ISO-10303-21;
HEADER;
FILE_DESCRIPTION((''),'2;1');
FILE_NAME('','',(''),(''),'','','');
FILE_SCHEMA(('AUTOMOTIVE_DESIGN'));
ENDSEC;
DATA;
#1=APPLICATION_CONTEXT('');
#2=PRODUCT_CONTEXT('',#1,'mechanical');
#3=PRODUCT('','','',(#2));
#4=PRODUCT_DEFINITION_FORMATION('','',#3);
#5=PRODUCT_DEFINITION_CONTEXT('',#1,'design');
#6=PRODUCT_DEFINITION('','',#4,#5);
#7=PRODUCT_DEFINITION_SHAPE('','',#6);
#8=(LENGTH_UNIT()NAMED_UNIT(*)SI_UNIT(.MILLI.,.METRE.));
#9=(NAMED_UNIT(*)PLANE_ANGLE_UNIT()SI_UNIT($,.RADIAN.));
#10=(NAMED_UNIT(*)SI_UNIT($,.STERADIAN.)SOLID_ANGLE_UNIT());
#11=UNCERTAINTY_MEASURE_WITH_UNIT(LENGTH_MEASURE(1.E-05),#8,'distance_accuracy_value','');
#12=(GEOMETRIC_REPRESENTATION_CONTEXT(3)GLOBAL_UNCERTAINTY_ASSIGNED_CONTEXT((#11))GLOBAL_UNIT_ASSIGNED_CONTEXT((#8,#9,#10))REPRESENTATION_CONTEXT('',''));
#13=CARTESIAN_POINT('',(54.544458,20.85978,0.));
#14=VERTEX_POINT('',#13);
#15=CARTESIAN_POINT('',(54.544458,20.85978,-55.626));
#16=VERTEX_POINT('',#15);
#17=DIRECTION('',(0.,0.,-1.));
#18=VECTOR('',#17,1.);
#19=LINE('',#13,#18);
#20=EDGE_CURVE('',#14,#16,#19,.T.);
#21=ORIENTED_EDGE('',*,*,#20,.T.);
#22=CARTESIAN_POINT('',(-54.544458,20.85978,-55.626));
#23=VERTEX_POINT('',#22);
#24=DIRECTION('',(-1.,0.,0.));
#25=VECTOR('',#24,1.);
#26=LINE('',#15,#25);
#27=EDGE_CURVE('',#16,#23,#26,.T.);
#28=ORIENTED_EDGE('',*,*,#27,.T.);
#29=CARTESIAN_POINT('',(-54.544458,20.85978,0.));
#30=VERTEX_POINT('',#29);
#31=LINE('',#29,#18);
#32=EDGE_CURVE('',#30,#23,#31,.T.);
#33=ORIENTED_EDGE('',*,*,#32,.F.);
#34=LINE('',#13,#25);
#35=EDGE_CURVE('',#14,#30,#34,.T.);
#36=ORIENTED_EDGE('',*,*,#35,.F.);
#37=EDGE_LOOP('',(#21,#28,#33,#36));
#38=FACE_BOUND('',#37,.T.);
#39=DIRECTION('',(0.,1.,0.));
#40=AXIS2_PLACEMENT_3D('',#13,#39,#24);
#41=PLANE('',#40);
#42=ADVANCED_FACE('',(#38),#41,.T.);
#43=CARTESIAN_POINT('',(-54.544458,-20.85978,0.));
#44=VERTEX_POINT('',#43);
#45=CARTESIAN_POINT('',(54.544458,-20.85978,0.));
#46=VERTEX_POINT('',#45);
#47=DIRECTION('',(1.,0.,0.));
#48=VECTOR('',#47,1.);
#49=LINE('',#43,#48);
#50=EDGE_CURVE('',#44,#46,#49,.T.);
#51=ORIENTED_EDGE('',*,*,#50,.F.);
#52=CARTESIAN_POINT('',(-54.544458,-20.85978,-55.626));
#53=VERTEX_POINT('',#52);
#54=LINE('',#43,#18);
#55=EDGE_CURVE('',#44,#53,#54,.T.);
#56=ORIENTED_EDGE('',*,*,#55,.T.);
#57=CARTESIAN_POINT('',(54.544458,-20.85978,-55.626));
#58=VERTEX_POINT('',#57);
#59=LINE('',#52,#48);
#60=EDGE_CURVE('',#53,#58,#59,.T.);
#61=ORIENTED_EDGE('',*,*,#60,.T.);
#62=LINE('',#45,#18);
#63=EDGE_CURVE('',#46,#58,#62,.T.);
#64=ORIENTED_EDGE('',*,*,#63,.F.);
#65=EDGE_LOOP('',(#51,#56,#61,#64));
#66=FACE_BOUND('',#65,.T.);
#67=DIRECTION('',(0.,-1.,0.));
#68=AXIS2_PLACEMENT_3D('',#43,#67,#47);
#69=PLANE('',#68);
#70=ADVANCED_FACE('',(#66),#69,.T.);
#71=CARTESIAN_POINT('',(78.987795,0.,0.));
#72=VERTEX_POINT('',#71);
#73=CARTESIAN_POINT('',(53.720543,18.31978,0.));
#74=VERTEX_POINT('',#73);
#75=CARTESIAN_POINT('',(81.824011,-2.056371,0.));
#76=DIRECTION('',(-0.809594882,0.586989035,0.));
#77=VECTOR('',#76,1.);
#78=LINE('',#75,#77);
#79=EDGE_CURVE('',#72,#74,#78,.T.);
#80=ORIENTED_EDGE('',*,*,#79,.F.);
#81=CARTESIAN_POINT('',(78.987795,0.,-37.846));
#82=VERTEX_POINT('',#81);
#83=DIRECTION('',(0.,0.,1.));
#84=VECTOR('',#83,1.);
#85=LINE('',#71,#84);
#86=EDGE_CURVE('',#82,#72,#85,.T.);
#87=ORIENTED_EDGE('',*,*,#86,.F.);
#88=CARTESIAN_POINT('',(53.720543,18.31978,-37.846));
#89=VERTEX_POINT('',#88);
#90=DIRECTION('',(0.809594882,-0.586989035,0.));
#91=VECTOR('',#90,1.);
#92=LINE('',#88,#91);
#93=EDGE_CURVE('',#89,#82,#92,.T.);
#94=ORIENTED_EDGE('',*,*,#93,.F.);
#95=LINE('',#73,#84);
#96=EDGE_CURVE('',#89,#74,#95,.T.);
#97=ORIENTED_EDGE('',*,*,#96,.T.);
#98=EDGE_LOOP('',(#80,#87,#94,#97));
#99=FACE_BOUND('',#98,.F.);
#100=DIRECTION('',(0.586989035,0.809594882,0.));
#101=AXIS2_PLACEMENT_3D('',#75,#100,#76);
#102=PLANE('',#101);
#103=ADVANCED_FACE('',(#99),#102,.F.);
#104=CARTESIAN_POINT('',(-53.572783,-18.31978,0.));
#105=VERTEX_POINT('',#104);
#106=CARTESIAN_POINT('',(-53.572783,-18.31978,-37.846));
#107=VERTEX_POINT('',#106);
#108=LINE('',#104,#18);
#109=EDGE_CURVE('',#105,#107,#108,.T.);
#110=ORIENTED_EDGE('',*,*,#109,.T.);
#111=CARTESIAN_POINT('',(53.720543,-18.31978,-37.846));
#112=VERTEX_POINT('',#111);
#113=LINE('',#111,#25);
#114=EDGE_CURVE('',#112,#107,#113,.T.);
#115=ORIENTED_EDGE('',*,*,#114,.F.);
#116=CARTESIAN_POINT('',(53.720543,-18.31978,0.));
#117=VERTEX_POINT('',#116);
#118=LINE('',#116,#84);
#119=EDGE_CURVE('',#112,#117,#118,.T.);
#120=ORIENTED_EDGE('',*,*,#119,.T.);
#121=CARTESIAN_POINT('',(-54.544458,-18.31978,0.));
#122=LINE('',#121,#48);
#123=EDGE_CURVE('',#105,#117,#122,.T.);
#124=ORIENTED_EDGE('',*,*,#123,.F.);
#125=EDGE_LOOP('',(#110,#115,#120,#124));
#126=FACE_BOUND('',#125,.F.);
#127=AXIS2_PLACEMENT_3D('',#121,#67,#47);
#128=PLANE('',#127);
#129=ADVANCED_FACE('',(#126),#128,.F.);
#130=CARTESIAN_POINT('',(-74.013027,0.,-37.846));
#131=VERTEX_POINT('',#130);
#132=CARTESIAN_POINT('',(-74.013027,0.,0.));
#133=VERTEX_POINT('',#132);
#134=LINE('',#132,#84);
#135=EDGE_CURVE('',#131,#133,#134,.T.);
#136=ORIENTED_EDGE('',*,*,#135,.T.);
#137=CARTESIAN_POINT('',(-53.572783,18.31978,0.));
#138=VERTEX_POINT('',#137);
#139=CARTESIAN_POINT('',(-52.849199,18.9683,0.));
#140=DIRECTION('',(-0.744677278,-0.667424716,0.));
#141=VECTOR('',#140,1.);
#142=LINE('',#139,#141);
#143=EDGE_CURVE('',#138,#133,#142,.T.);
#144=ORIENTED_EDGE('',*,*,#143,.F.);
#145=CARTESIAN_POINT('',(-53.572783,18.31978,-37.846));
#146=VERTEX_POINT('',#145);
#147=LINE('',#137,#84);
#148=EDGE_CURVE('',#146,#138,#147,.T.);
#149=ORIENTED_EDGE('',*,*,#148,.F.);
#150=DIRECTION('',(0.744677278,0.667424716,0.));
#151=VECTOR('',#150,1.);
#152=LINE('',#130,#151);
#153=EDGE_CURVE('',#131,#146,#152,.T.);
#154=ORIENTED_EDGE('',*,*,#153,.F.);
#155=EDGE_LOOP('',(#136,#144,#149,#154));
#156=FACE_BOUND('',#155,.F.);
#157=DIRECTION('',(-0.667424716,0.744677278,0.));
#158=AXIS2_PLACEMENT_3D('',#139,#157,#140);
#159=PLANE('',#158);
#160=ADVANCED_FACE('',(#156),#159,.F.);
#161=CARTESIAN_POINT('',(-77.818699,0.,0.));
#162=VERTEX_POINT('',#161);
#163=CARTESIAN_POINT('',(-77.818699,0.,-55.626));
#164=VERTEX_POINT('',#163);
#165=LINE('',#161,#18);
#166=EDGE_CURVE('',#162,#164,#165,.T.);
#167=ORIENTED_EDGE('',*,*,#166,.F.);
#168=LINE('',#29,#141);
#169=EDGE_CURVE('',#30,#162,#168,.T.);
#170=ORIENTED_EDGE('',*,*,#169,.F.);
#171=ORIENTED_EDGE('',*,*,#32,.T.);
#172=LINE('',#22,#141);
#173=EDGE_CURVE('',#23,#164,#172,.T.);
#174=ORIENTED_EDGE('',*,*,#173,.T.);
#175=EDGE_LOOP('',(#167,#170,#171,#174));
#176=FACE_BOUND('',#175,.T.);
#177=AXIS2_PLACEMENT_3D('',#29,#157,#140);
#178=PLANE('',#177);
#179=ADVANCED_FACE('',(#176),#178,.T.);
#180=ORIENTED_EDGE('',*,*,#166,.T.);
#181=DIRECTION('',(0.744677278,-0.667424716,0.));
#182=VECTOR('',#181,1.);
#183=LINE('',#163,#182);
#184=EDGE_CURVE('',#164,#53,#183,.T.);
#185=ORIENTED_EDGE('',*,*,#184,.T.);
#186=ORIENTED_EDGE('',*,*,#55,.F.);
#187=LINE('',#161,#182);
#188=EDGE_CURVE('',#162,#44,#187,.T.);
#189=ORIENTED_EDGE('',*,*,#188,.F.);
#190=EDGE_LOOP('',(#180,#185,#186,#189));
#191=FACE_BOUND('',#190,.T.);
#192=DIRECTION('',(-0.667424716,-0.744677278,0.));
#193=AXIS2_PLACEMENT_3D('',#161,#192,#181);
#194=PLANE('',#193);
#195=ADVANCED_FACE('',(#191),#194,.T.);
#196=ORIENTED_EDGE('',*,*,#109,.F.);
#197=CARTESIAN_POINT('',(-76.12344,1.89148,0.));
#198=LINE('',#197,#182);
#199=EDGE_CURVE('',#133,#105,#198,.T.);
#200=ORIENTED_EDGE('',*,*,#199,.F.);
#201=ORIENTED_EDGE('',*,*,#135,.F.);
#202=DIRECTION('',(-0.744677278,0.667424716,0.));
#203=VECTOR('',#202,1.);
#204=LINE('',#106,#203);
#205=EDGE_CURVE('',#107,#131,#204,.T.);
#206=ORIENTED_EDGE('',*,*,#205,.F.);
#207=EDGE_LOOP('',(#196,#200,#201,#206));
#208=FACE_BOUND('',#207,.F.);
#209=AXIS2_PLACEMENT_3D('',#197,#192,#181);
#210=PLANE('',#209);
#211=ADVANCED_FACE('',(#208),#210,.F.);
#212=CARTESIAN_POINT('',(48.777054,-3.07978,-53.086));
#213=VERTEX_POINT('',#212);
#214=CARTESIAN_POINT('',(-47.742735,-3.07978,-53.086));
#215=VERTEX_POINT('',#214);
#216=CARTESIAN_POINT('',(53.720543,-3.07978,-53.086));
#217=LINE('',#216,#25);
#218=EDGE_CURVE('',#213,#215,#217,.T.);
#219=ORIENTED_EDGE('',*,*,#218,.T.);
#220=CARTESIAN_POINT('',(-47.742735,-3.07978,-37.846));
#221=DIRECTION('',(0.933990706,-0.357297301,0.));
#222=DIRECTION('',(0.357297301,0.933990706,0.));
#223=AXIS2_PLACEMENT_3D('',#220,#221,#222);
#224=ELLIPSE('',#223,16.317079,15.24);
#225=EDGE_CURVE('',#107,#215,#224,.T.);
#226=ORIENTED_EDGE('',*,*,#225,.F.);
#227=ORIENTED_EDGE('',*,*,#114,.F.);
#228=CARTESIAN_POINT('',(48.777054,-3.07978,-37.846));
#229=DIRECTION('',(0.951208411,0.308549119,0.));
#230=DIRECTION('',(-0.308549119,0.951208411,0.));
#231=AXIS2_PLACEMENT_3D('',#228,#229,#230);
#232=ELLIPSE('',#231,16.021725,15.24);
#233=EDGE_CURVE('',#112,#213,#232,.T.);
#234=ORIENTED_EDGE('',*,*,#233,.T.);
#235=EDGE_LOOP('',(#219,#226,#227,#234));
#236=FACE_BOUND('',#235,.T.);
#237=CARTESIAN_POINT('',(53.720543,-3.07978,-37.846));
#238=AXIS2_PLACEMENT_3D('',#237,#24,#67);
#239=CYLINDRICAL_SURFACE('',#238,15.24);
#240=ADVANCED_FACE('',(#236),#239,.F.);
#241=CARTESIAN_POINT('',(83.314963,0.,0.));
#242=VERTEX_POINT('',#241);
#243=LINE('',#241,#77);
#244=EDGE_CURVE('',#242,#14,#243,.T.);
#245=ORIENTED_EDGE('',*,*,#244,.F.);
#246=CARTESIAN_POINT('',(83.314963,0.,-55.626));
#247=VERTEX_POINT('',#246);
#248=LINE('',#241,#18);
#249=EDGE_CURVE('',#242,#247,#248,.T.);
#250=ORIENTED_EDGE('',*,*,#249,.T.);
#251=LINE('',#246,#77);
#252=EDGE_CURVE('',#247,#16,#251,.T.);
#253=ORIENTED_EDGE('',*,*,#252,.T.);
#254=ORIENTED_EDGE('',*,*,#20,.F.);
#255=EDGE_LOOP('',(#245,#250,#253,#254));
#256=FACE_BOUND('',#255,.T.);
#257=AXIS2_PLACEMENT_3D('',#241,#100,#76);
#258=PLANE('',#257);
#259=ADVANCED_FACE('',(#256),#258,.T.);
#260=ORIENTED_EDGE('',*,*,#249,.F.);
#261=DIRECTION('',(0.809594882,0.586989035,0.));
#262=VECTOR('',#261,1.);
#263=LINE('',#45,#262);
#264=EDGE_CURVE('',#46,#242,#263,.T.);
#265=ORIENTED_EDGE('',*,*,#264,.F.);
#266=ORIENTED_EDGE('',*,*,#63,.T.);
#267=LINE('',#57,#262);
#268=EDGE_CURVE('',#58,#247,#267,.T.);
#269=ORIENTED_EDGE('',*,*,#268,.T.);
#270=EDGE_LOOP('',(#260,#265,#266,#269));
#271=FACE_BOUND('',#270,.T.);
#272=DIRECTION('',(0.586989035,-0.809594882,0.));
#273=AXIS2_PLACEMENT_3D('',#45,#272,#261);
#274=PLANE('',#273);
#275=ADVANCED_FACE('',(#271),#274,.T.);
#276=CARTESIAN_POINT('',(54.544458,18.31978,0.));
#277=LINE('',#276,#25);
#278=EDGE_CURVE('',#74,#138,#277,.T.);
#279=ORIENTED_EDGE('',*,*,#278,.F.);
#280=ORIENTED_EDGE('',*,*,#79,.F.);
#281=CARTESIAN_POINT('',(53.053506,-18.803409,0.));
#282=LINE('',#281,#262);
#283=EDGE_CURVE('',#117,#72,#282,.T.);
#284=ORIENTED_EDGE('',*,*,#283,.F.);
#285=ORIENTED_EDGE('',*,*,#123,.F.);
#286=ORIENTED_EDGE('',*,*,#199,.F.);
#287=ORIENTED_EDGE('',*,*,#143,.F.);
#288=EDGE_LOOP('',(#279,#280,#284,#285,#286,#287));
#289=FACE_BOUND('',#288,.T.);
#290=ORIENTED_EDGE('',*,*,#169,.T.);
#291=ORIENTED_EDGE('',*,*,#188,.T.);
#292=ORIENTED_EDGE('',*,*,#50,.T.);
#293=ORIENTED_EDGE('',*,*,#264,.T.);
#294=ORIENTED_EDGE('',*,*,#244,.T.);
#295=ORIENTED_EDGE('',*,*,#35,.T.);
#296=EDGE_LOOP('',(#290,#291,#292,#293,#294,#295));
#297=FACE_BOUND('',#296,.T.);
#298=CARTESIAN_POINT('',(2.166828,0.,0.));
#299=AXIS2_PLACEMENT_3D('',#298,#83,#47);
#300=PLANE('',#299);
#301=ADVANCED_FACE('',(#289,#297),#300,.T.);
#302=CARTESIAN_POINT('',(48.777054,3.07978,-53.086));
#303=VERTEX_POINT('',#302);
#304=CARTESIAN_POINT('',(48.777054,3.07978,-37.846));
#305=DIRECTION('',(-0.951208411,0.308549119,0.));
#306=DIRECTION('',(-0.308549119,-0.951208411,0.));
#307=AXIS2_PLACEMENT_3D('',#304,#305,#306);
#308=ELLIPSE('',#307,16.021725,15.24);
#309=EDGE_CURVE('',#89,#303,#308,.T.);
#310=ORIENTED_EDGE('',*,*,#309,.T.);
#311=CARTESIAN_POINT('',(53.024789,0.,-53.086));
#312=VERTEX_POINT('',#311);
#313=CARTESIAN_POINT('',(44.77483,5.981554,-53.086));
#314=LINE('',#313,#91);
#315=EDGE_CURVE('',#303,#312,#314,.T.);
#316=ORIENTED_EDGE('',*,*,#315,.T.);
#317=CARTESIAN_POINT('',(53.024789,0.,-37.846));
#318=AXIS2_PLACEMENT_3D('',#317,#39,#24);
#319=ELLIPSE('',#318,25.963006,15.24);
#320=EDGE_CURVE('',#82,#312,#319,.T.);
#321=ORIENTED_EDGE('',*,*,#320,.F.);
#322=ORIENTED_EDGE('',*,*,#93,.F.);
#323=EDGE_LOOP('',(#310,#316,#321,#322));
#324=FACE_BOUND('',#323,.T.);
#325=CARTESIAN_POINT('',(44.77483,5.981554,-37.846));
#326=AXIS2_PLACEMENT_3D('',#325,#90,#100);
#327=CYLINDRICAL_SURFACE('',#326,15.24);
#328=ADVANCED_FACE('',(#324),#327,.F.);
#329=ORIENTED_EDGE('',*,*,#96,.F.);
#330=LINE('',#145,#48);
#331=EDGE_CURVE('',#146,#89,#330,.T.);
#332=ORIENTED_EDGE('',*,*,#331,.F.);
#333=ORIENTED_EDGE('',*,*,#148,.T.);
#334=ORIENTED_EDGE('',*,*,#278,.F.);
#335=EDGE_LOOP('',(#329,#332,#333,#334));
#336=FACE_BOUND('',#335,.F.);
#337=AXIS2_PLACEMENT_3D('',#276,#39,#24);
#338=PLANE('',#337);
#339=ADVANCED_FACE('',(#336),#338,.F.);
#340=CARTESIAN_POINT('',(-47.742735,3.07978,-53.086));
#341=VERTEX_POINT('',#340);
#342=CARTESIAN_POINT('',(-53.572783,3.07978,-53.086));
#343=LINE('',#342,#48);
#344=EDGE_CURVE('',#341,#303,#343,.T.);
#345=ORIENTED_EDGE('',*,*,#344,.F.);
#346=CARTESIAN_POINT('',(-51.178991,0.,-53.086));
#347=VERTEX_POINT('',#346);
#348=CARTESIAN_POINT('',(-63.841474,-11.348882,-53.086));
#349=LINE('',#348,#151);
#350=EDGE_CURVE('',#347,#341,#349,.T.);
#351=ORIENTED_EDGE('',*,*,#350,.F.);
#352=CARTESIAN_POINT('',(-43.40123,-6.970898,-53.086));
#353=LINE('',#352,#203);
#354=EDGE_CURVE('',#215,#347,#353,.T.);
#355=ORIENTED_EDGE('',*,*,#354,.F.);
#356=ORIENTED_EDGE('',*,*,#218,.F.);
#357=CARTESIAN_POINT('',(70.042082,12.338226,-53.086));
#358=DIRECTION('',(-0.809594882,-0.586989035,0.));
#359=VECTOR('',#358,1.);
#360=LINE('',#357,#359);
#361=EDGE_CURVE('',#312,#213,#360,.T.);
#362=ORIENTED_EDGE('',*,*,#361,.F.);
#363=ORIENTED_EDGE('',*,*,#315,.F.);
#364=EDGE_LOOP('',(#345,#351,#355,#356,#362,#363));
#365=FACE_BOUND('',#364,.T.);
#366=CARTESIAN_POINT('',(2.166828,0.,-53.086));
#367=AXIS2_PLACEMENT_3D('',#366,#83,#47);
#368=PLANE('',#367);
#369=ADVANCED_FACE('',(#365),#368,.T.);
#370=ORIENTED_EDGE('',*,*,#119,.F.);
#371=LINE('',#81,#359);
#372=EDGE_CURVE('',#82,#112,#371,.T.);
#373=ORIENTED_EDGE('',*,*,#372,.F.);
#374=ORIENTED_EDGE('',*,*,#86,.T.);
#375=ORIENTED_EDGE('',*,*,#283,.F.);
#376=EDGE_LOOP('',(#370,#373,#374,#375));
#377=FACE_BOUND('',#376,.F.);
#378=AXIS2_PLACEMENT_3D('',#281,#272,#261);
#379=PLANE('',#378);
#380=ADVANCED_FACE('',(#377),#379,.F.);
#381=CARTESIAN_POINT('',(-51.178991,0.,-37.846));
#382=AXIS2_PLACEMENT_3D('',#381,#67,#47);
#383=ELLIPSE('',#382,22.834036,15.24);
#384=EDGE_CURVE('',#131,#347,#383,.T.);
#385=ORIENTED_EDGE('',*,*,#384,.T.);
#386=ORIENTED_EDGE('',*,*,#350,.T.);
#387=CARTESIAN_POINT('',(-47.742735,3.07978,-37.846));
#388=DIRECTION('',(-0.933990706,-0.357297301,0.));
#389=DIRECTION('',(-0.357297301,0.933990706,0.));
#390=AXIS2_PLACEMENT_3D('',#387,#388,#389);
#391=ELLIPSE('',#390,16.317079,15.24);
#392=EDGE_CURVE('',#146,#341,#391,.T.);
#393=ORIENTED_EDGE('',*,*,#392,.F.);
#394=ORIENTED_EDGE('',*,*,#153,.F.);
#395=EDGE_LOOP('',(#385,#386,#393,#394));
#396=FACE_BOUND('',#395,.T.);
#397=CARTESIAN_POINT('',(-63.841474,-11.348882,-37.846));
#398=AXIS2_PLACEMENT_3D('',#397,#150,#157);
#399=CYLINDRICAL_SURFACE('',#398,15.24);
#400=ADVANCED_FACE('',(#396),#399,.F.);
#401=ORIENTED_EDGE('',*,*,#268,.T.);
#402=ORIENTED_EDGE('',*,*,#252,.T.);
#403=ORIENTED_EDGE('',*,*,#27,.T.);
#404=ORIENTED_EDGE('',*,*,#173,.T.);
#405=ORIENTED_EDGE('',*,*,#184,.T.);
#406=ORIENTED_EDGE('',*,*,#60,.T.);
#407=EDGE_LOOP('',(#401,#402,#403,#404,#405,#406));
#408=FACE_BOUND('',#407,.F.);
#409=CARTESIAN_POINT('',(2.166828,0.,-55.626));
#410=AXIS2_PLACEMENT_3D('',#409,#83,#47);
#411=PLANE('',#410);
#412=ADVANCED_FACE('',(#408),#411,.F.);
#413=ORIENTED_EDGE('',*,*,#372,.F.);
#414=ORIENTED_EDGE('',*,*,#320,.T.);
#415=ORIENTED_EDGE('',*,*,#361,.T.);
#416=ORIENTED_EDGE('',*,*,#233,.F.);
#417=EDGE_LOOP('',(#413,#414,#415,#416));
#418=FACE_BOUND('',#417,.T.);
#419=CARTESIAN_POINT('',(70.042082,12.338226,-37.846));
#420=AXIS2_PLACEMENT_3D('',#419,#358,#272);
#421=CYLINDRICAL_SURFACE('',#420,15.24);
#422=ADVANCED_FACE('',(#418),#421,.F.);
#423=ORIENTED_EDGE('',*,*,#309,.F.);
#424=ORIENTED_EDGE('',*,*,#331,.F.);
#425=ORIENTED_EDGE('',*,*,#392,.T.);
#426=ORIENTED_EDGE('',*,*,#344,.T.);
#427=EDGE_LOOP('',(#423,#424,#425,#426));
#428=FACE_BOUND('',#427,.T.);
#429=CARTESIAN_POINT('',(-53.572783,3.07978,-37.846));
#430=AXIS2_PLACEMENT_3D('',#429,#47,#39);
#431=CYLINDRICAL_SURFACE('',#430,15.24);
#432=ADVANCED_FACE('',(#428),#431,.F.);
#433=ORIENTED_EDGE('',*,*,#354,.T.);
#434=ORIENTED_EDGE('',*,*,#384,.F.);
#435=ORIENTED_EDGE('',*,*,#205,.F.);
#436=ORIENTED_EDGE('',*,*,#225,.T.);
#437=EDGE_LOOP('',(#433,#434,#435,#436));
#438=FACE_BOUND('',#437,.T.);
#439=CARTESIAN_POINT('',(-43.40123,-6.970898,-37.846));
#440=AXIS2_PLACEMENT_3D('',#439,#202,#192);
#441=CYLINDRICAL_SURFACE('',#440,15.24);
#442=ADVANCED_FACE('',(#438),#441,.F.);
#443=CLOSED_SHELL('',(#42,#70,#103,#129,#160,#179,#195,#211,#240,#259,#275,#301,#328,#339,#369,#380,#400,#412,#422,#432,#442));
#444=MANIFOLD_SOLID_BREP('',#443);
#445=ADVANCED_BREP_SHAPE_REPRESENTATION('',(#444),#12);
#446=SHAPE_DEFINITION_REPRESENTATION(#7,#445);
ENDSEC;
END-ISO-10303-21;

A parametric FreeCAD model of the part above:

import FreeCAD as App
import Part
import Sketcher
Q = App.Units.Quantity


def edges_at(feature, points):
    """Names of the edges that pass closest to the given points."""
    edges = feature.Shape.Edges
    near = lambda p: min(range(len(edges)), key=lambda i: edges[i].distToShape(Part.Vertex(*p))[0])
    return sorted({f"Edge{near(p) + 1}" for p in points})


def faces_at(feature, points):
    """Names of the faces that lie closest to the given points."""
    faces = feature.Shape.Faces
    near = lambda p: min(range(len(faces)), key=lambda i: faces[i].distToShape(Part.Vertex(*p))[0])
    return sorted({f"Face{near(p) + 1}" for p in points})

doc = App.newDocument("Part")
body = doc.addObject("PartDesign::Body", "Body")

# Sketch on XY plane
sketch1 = doc.addObject("Sketcher::SketchObject", "Sketch")
body.addObject(sketch1)
sketch1.AttachmentSupport = (doc.XY_Plane, [""])
sketch1.MapMode = "FlatFace"
sketch1.addGeometry([
    Part.LineSegment(App.Vector(-54.544458, -20.85978, 0), App.Vector(54.544458, -20.85978, 0)),  # 0
    Part.LineSegment(App.Vector(54.544458, -20.85978, 0), App.Vector(83.314963, 0, 0)),  # 1
    Part.LineSegment(App.Vector(83.314963, 0, 0), App.Vector(54.544458, 20.85978, 0)),  # 2
    Part.LineSegment(App.Vector(54.544458, 20.85978, 0), App.Vector(-54.544458, 20.85978, 0)),  # 3
    Part.LineSegment(App.Vector(-54.544458, 20.85978, 0), App.Vector(-77.818699, 0, 0)),  # 4
    Part.LineSegment(App.Vector(-77.818699, 0, 0), App.Vector(-54.544458, -20.85978, 0)),  # 5
], False)
sketch1.addConstraint([
    Sketcher.Constraint("Coincident", 0, 2, 1, 1),
    Sketcher.Constraint("Coincident", 1, 2, 2, 1),
    Sketcher.Constraint("Coincident", 2, 2, 3, 1),
    Sketcher.Constraint("Coincident", 3, 2, 4, 1),
    Sketcher.Constraint("Coincident", 4, 2, 5, 1),
    Sketcher.Constraint("Coincident", 5, 2, 0, 1),
    Sketcher.Constraint("Horizontal", 0),
    Sketcher.Constraint("Horizontal", 3),
    Sketcher.Constraint("Symmetric", 0, 2, 3, 2, -1, 1),
    Sketcher.Constraint("PointOnObject", 1, 2, -1),
    Sketcher.Constraint("PointOnObject", 4, 2, -1),
    Sketcher.Constraint("Vertical", 0, 2, 2, 2),
    Sketcher.Constraint("Vertical", 3, 2, 5, 2),
    Sketcher.Constraint("DistanceX", 4, 2, -1, 1, 77.818699),
    Sketcher.Constraint("Distance", 4, 31.254131),
    Sketcher.Constraint("DistanceX", 0, 1, 0, 2, 109.088915),
    Sketcher.Constraint("DistanceX", 3, 2, 1, 2, 137.85942),
])
pad1 = doc.addObject("PartDesign::Pad", "Pad")
body.addObject(pad1)
pad1.Profile = sketch1
pad1.Length = Q("2.19 in")
pad1.Reversed = True
doc.recompute()

thickness = doc.addObject("PartDesign::Thickness", "Thickness")
body.addObject(thickness)
thickness.Base = (pad1, faces_at(pad1, [(2.748, 0, 0)]))
thickness.Value = Q("0.1 in")
thickness.Reversed = True
thickness.Join = "Arc"
doc.recompute()

fillet = doc.addObject("PartDesign::Fillet", "Fillet")
body.addObject(fillet)
fillet.Base = (thickness, edges_at(thickness, [
    (-63.793, 9.16, -53.086),
    (-63.793, -9.16, -53.086),
    (0.074, -18.32, -53.086),
    (66.354, -9.16, -53.086),
    (66.354, 9.16, -53.086),
    (0.074, 18.32, -53.086),
]))
fillet.Radius = Q("0.6 in")

doc.recompute()
